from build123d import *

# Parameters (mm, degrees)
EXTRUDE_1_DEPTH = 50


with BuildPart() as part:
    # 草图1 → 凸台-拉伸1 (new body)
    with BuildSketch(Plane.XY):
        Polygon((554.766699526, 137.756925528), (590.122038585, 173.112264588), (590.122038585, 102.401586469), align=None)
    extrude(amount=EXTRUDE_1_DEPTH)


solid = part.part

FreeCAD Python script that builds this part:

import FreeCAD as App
import Part
import Sketcher


def add_polygon(sketch, points):
    """Adds a closed chain of lines whose ends are joined by coincident constraints."""
    first, n = sketch.GeometryCount, len(points)
    for a, b in zip(points, points[1:] + points[:1]):
        sketch.addGeometry(Part.LineSegment(App.Vector(*a, 0), App.Vector(*b, 0)), False)
    for i in range(n):
        sketch.addConstraint(Sketcher.Constraint("Coincident", first + i, 2, first + (i + 1) % n, 1))

doc = App.newDocument("Part")
body = doc.addObject("PartDesign::Body", "Body")

# Sketch on XY plane
sketch1 = body.newObject("Sketcher::SketchObject", "Sketch")
sketch1.AttachmentSupport = (doc.getObject("XY_Plane"), [""])
sketch1.MapMode = "FlatFace"
add_polygon(sketch1, [(590.122039, 173.112265), (554.7667, 137.756926), (590.122039, 102.401586)])  # lines 0-2
sketch1.addConstraint([
    Sketcher.Constraint("Vertical", 2),
    Sketcher.Constraint("Perpendicular", 0, 1),
    Sketcher.Constraint("Equal", 0, 1),
    Sketcher.Constraint("Distance", 0, 50.0),
    Sketcher.Constraint("DistanceX", -1, 1, 0, 2, 554.7667),
    Sketcher.Constraint("DistanceY", -1, 1, 0, 2, 137.756926),
])
pad1 = body.newObject("PartDesign::Pad", "Pad")
pad1.Profile = sketch1
pad1.Length = 50

doc.recompute()
